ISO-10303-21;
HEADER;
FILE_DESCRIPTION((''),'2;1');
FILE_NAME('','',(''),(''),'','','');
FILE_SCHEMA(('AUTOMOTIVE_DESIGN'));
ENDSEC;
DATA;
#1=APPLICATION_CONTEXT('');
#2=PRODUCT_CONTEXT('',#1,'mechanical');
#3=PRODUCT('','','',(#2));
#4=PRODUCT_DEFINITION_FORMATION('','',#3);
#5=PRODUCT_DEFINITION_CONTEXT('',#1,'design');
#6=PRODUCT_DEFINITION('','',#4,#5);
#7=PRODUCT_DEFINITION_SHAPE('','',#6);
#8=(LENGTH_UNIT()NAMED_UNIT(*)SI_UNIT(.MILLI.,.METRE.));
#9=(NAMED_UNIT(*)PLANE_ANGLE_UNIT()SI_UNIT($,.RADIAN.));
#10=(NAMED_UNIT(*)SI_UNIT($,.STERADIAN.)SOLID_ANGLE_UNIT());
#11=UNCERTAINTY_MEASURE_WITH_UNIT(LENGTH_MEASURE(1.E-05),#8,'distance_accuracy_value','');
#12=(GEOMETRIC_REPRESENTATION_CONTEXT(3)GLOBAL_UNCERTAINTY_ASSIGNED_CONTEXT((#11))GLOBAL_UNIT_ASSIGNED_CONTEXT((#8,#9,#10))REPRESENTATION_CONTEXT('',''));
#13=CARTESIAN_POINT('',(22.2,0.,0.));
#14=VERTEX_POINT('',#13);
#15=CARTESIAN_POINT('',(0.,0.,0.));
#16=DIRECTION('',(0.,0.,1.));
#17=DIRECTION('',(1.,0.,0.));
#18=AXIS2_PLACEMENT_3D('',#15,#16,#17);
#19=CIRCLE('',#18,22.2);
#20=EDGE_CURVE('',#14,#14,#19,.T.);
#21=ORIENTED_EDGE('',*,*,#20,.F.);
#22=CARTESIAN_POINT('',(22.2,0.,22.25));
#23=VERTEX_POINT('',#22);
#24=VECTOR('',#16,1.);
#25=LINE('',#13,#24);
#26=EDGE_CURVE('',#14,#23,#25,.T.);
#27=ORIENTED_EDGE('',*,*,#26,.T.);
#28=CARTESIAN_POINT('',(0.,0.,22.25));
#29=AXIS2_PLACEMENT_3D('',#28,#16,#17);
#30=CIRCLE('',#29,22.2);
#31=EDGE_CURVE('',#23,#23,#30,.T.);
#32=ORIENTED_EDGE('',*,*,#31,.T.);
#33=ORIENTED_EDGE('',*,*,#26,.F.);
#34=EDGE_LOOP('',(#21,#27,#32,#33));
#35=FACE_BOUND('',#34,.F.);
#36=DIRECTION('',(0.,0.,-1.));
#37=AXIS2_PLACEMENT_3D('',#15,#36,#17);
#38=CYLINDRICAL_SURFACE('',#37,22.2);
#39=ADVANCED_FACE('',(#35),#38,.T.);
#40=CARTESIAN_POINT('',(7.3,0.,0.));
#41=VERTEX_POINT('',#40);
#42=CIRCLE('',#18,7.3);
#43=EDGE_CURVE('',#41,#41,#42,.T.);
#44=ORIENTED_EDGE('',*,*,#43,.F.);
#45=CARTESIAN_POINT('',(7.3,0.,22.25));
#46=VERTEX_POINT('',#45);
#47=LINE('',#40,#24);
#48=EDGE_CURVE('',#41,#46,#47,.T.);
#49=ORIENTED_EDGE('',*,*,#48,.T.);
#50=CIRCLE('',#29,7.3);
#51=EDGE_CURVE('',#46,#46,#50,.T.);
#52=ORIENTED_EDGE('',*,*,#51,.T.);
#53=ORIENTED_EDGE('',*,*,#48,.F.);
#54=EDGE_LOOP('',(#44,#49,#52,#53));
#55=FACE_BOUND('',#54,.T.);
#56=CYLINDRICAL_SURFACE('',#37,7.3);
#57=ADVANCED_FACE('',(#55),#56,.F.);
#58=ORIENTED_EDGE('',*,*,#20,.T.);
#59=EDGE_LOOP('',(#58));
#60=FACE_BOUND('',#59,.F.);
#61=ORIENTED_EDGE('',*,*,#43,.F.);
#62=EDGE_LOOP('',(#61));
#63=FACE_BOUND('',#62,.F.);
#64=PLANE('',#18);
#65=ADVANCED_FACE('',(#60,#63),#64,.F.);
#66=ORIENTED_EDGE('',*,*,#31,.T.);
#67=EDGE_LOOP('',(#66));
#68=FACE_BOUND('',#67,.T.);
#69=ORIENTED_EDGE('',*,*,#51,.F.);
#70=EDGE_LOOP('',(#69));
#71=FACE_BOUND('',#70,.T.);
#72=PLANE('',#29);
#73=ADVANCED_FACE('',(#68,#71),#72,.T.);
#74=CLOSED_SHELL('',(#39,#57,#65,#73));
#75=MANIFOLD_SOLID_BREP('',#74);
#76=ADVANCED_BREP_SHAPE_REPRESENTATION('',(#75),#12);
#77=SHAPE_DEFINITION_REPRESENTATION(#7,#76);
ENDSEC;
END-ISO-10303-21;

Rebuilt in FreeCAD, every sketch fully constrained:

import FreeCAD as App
import Part
import Sketcher
from FreeCAD import Vector

doc = App.newDocument("Part")
body = doc.addObject("PartDesign::Body", "Body")

sketch1 = doc.addObject("Sketcher::SketchObject", "Sketch")
body.addObject(sketch1)
sketch1.AttachmentSupport = (doc.XY_Plane, [""])
sketch1.MapMode = "FlatFace"
sketch1.addGeometry(Part.Circle(Vector(0, 0, 0), Vector(0, 0, 1), 22), False)
sketch1.addGeometry(Part.Circle(Vector(0, 0, 0), Vector(0, 0, 1), 7), False)
sketch1.addConstraint(Sketcher.Constraint("Coincident", 0, 3, -1, 1))
sketch1.addConstraint(Sketcher.Constraint("Coincident", 1, 3, -1, 1))
sketch1.addConstraint(Sketcher.Constraint("Diameter", 0, 44.4))
sketch1.addConstraint(Sketcher.Constraint("Diameter", 1, 14.6))
pad1 = doc.addObject("PartDesign::Pad", "Pad")
body.addObject(pad1)
pad1.Profile = sketch1
pad1.Length = 22.25

doc.recompute()
